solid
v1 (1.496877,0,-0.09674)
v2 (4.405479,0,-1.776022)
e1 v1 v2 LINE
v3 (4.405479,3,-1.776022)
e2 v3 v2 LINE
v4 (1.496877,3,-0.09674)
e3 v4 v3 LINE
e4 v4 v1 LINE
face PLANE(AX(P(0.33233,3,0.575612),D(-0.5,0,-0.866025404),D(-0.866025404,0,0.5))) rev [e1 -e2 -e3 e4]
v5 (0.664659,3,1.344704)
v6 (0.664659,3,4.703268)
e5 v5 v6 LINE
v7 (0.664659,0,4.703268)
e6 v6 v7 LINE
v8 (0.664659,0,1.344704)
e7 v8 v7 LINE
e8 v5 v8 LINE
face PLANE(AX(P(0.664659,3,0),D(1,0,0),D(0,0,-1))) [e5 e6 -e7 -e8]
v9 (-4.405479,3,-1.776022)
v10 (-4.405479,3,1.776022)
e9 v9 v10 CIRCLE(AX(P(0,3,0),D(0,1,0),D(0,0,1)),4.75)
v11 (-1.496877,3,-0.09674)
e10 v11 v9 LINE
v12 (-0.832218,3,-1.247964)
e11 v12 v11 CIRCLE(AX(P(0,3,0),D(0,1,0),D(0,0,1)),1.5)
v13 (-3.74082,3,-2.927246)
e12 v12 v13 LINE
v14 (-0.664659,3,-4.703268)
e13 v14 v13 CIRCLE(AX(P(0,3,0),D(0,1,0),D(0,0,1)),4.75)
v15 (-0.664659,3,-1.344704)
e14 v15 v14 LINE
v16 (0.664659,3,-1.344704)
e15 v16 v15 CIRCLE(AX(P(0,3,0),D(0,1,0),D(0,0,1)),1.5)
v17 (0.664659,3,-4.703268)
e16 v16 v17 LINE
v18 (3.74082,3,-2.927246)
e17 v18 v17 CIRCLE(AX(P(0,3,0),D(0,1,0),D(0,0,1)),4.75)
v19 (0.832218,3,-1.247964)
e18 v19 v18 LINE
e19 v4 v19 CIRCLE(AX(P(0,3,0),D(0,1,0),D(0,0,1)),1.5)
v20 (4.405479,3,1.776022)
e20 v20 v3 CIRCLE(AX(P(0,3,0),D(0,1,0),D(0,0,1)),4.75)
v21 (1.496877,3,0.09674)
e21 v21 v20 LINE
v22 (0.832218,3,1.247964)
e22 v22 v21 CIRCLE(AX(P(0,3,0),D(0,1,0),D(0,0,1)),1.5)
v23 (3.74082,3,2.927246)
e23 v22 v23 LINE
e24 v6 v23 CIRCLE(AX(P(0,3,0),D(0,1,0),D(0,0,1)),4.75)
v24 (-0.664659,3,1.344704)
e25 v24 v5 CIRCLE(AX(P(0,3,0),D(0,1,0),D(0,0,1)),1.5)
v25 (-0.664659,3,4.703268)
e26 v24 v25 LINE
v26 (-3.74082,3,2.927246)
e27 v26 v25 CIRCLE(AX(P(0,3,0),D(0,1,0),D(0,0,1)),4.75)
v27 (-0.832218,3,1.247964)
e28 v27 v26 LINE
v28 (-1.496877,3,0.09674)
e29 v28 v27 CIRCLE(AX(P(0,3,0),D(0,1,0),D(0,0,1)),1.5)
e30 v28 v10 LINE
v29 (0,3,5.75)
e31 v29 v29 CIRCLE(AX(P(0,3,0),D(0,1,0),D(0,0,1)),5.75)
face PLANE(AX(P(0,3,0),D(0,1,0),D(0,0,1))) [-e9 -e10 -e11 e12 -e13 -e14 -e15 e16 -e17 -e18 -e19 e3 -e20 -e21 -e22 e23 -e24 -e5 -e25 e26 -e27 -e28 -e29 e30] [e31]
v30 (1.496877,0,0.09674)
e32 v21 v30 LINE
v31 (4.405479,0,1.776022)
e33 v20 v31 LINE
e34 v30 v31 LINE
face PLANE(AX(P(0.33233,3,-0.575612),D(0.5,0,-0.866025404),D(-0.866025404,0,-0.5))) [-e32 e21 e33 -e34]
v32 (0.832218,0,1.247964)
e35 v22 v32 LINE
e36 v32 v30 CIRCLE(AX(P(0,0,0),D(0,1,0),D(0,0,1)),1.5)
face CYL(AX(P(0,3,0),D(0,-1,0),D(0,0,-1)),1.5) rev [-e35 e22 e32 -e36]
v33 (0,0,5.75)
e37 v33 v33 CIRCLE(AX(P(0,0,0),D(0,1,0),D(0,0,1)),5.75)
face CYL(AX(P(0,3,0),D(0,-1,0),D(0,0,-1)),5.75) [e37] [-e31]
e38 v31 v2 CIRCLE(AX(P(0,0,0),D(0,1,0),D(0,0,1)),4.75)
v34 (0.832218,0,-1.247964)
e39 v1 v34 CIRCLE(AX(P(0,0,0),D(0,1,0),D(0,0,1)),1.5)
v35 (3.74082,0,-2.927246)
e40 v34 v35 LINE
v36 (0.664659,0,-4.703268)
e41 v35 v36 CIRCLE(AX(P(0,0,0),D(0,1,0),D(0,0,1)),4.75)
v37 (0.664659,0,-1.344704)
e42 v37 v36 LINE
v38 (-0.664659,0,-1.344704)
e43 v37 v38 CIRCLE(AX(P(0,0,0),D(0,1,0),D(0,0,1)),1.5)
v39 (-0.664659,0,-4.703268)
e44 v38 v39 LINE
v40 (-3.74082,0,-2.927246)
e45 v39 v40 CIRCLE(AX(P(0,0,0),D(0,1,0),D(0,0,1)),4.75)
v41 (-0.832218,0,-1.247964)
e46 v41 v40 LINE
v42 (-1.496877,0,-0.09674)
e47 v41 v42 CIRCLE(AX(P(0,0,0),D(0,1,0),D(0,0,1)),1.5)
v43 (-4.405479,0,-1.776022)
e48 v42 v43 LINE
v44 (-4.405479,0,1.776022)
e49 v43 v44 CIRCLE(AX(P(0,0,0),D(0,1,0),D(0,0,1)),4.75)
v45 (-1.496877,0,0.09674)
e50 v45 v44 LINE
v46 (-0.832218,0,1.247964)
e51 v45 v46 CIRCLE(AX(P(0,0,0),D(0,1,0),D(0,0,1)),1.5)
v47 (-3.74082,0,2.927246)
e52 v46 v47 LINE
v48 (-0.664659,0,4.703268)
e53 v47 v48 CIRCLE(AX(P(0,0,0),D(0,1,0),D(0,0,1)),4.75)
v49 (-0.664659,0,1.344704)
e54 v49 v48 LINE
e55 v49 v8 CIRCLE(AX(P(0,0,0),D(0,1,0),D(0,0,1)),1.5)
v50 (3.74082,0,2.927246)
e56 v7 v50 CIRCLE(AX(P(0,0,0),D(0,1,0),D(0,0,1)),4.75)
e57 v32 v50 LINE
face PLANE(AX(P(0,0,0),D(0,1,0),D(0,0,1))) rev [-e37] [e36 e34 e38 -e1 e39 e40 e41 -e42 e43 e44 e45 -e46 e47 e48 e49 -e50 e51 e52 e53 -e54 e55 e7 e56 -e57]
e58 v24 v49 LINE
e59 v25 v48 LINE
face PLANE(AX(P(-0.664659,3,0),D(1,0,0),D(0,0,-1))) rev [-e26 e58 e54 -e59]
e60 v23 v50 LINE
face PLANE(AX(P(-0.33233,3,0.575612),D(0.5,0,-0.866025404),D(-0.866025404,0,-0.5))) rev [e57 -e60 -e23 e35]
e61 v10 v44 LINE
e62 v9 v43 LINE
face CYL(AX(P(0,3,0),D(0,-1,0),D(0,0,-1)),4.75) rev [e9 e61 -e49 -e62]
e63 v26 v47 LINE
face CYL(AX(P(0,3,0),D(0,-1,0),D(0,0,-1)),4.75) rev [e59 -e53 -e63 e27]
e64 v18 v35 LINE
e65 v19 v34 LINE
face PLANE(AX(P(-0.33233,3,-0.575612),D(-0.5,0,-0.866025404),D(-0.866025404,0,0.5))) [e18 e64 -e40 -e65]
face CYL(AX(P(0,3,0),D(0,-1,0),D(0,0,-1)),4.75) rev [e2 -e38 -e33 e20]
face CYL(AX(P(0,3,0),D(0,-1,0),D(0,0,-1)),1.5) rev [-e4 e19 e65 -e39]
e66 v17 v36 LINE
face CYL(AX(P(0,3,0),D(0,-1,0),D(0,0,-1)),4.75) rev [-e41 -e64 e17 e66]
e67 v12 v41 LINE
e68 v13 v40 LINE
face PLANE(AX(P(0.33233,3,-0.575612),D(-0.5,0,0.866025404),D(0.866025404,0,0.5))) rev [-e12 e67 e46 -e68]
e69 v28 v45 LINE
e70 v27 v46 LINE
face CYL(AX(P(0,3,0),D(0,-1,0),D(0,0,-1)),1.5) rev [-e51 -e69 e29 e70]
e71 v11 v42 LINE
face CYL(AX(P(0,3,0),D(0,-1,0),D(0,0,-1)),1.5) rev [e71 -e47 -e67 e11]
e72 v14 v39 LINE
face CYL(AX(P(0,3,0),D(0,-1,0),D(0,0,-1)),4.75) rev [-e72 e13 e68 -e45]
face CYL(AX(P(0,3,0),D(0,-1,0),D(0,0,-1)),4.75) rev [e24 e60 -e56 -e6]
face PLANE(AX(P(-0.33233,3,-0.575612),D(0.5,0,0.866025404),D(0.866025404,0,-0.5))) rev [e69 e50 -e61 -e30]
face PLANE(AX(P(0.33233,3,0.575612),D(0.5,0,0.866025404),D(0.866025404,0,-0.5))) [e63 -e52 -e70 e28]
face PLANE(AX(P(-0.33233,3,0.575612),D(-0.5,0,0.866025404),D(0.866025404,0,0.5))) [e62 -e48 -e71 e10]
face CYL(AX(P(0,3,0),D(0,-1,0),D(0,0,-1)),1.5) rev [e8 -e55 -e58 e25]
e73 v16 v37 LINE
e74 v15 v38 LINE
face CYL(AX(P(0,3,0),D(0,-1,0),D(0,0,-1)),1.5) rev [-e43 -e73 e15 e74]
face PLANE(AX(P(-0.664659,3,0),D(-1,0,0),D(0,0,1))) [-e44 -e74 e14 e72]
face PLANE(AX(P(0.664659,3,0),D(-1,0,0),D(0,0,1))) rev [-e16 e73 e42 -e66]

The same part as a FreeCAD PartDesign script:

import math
import FreeCAD as App
import Part
import Sketcher
from FreeCAD import Vector
Q = App.Units.Quantity

doc = App.newDocument("Part")
body = doc.addObject("PartDesign::Body", "Body")

sketch1 = doc.addObject("Sketcher::SketchObject", "Sketch")
body.addObject(sketch1)
sketch1.AttachmentSupport = (doc.XZ_Plane, [""])
sketch1.MapMode = "FlatFace"
sketch1.addGeometry([
    Part.Circle(Vector(0, 0, 0), Vector(0, 0, 1), 5.8),
    Part.LineSegment(Vector(4.4, 1.8, 0), Vector(1.5, 0.1, 0)),
    Part.ArcOfCircle(Part.Circle(Vector(0, 0, 0), Vector(0, 0, 1), 1.5), math.radians(4), math.radians(56)),
    Part.LineSegment(Vector(0.8, 1.2, 0), Vector(3.7, 2.9, 0)),
    Part.ArcOfCircle(Part.Circle(Vector(0, 0, 0), Vector(0, 0, 1), 4.8), math.radians(38), math.radians(82)),
    Part.LineSegment(Vector(0.7, 4.7, 0), Vector(0.7, 1.3, 0)),
    Part.ArcOfCircle(Part.Circle(Vector(0, 0, 0), Vector(0, 0, 1), 1.5), math.radians(64), math.radians(116)),
    Part.LineSegment(Vector(-0.7, 1.3, 0), Vector(-0.7, 4.7, 0)),
    Part.ArcOfCircle(Part.Circle(Vector(0, 0, 0), Vector(0, 0, 1), 4.8), math.radians(98), math.radians(142)),
    Part.LineSegment(Vector(-3.7, 2.9, 0), Vector(-0.8, 1.2, 0)),
    Part.ArcOfCircle(Part.Circle(Vector(0, 0, 0), Vector(0, 0, 1), 1.5), math.radians(124), math.radians(176)),
    Part.LineSegment(Vector(-1.5, 0.1, 0), Vector(-4.4, 1.8, 0)),
    Part.ArcOfCircle(Part.Circle(Vector(0, 0, 0), Vector(0, 0, 1), 4.7), math.radians(158), math.radians(202)),
    Part.LineSegment(Vector(-4.4, -1.8, 0), Vector(-1.5, -0.1, 0)),
    Part.ArcOfCircle(Part.Circle(Vector(0, 0, 0), Vector(0, 0, 1), 1.5), math.radians(-176), math.radians(-124)),
    Part.LineSegment(Vector(-0.8, -1.2, 0), Vector(-3.7, -2.9, 0)),
    Part.ArcOfCircle(Part.Circle(Vector(0, 0, 0), Vector(0, 0, 1), 4.8), math.radians(-142), math.radians(-98)),
    Part.LineSegment(Vector(-0.7, -4.7, 0), Vector(-0.7, -1.3, 0)),
    Part.ArcOfCircle(Part.Circle(Vector(0, 0, 0), Vector(0, 0, 1), 1.5), math.radians(-116), math.radians(-64)),
    Part.LineSegment(Vector(0.7, -1.3, 0), Vector(0.7, -4.7, 0)),
    Part.ArcOfCircle(Part.Circle(Vector(0, 0, 0), Vector(0, 0, 1), 4.8), math.radians(-82), math.radians(-38)),
    Part.LineSegment(Vector(3.7, -2.9, 0), Vector(0.8, -1.2, 0)),
    Part.ArcOfCircle(Part.Circle(Vector(0, 0, 0), Vector(0, 0, 1), 1.5), math.radians(-56), math.radians(-4)),
    Part.LineSegment(Vector(1.5, -0.1, 0), Vector(4.4, -1.8, 0)),
    Part.ArcOfCircle(Part.Circle(Vector(0, 0, 0), Vector(0, 0, 1), 4.7), math.radians(-22), math.radians(22)),
], False)
sketch1.addConstraint([
    Sketcher.Constraint("Coincident", 1, 2, 2, 1),
    Sketcher.Constraint("Coincident", 2, 2, 3, 1),
    Sketcher.Constraint("Coincident", 3, 2, 4, 1),
    Sketcher.Constraint("Coincident", 4, 2, 5, 1),
    Sketcher.Constraint("Coincident", 5, 2, 6, 1),
    Sketcher.Constraint("Coincident", 6, 2, 7, 1),
    Sketcher.Constraint("Coincident", 7, 2, 8, 1),
    Sketcher.Constraint("Coincident", 8, 2, 9, 1),
    Sketcher.Constraint("Coincident", 9, 2, 10, 1),
    Sketcher.Constraint("Coincident", 10, 2, 11, 1),
    Sketcher.Constraint("Coincident", 11, 2, 12, 1),
    Sketcher.Constraint("Coincident", 12, 2, 13, 1),
    Sketcher.Constraint("Coincident", 13, 2, 14, 1),
    Sketcher.Constraint("Coincident", 14, 2, 15, 1),
    Sketcher.Constraint("Coincident", 15, 2, 16, 1),
    Sketcher.Constraint("Coincident", 16, 2, 17, 1),
    Sketcher.Constraint("Coincident", 17, 2, 18, 1),
    Sketcher.Constraint("Coincident", 18, 2, 19, 1),
    Sketcher.Constraint("Coincident", 19, 2, 20, 1),
    Sketcher.Constraint("Coincident", 20, 2, 21, 1),
    Sketcher.Constraint("Coincident", 21, 2, 22, 1),
    Sketcher.Constraint("Coincident", 22, 2, 23, 1),
    Sketcher.Constraint("Coincident", 23, 2, 24, 1),
    Sketcher.Constraint("Coincident", 24, 2, 1, 1),
    Sketcher.Constraint("Vertical", 5),
    Sketcher.Constraint("Vertical", 7),
    Sketcher.Constraint("Vertical", 17),
    Sketcher.Constraint("Vertical", 19),
    Sketcher.Constraint("Coincident", 0, 3, -1, 1),
    Sketcher.Constraint("Coincident", 2, 3, -1, 1),
    Sketcher.Constraint("Coincident", 4, 3, -1, 1),
    Sketcher.Constraint("Coincident", 6, 3, -1, 1),
    Sketcher.Constraint("Coincident", 8, 3, -1, 1),
    Sketcher.Constraint("Coincident", 10, 3, -1, 1),
    Sketcher.Constraint("Coincident", 12, 3, -1, 1),
    Sketcher.Constraint("Coincident", 14, 3, -1, 1),
    Sketcher.Constraint("Coincident", 16, 3, -1, 1),
    Sketcher.Constraint("Coincident", 18, 3, -1, 1),
    Sketcher.Constraint("Coincident", 20, 3, -1, 1),
    Sketcher.Constraint("Coincident", 22, 3, -1, 1),
    Sketcher.Constraint("Coincident", 24, 3, -1, 1),
    Sketcher.Constraint("Equal", 2, 6),
    Sketcher.Constraint("Equal", 4, 8),
    Sketcher.Constraint("Equal", 6, 10),
    Sketcher.Constraint("Equal", 8, 12),
    Sketcher.Constraint("Equal", 10, 14),
    Sketcher.Constraint("Equal", 12, 16),
    Sketcher.Constraint("Equal", 14, 18),
    Sketcher.Constraint("Equal", 16, 20),
    Sketcher.Constraint("Equal", 18, 22),
    Sketcher.Constraint("Equal", 20, 24),
    Sketcher.Constraint("Parallel", 1, 3),
    Sketcher.Constraint("Parallel", 9, 11),
    Sketcher.Constraint("Parallel", 3, 13),
    Sketcher.Constraint("Parallel", 13, 15),
    Sketcher.Constraint("Parallel", 11, 21),
    Sketcher.Constraint("Parallel", 21, 23),
    Sketcher.Constraint("Horizontal", 5, 2, 6, 2),
    Sketcher.Constraint("Horizontal", 3, 2, 8, 2),
    Sketcher.Constraint("Horizontal", 2, 2, 9, 2),
    Sketcher.Constraint("Horizontal", 1, 2, 10, 2),
    Sketcher.Constraint("Horizontal", 17, 2, 18, 2),
    Sketcher.Constraint("Horizontal", 15, 2, 20, 2),
    Sketcher.Constraint("Horizontal", 13, 2, 22, 2),
    Sketcher.Constraint("Vertical", 11, 2, 12, 2),
    Sketcher.Constraint("Vertical", 9, 2, 14, 2),
    Sketcher.Constraint("Vertical", 7, 2, 16, 2),
    Sketcher.Constraint("Equal", 1, 3),
    Sketcher.Constraint("Diameter", 0, Q("11.5 mm")),
    Sketcher.Constraint("Radius", 2, Q("1.5 mm")),
    Sketcher.Constraint("Angle", 1, Q("-150 deg")),
    Sketcher.Constraint("Radius", 4, Q("4.75 mm")),
    Sketcher.Constraint("DistanceX", 2, 2, 3, 2, Q("2.908602 mm")),
    Sketcher.Constraint("DistanceY", 5, 2, 5, 1, Q("3.358564 mm")),
])
pad1 = doc.addObject("PartDesign::Pad", "Pad")
body.addObject(pad1)
pad1.Profile = sketch1
pad1.Length = 3
pad1.Reversed = True

doc.recompute()
